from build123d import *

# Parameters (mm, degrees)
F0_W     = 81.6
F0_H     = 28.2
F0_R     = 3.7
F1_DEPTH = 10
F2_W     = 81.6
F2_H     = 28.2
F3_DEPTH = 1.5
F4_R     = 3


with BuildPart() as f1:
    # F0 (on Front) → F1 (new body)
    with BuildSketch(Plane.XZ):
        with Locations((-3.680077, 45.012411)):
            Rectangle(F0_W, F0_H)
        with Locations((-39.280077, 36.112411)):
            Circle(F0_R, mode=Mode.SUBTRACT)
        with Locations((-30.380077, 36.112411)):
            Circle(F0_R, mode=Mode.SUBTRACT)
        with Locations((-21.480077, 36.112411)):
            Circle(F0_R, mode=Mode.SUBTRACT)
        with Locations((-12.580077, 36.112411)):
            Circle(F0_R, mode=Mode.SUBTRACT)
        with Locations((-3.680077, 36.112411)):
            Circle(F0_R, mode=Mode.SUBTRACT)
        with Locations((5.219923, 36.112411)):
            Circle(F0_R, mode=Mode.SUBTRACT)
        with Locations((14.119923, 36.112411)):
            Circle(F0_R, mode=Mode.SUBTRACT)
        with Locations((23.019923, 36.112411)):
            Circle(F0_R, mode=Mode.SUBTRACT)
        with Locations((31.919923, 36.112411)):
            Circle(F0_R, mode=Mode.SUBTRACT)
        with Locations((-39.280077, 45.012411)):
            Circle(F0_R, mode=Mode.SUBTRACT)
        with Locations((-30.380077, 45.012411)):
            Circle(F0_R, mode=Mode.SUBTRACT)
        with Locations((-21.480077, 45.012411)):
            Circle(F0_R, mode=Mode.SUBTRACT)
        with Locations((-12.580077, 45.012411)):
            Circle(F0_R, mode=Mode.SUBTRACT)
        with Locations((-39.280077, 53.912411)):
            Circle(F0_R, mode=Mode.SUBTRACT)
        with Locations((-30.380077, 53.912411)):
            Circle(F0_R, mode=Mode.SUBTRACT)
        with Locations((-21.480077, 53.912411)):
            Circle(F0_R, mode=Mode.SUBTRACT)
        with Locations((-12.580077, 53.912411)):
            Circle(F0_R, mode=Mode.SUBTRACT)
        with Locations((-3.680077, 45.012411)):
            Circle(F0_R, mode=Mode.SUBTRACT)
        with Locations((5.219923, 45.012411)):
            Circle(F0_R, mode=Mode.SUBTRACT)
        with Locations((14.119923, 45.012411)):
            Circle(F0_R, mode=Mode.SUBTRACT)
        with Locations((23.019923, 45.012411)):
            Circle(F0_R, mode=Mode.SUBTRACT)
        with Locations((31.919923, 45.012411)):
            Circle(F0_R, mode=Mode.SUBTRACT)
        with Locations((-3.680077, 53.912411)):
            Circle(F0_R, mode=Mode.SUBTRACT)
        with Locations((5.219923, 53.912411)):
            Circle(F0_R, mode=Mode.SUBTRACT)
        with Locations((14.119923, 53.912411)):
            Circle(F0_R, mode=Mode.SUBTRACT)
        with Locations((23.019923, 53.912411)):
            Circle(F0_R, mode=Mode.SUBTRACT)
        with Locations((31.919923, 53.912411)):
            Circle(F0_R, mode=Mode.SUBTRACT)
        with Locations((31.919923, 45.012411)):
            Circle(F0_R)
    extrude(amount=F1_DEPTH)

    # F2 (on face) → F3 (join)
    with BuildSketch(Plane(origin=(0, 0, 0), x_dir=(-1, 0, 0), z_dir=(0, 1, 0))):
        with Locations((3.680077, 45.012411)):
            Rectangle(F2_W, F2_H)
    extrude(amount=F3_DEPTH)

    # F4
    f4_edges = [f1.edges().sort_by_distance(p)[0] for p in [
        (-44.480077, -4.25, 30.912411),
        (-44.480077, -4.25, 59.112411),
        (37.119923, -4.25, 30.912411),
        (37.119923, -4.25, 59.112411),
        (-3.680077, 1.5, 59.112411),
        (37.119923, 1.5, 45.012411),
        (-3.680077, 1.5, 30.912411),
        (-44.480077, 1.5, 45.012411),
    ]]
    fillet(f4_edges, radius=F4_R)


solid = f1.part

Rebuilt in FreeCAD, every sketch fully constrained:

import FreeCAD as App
import Part
import Sketcher
Q = App.Units.Quantity


def edges_at(feature, points):
    """Names of the edges that pass closest to the given points."""
    edges = feature.Shape.Edges
    near = lambda p: min(range(len(edges)), key=lambda i: edges[i].distToShape(Part.Vertex(*p))[0])
    return sorted({f"Edge{near(p) + 1}" for p in points})

doc = App.newDocument("Part")
params = doc.addObject("Spreadsheet::Sheet", "Params")
for row, (alias, value) in enumerate([
    ("sketch1_diameter", "7.4 mm"),
    ("sketch1_width", "81.6 mm"),
    ("sketch1_height", "28.2 mm"),
    ("pad1_length", "10 mm"),
    ("sketch2_width", "81.6 mm"),
    ("sketch2_height", "28.2 mm"),
    ("pad2_length", "1.5 mm"),
    ("fillet_radius", "3 mm"),
], start=1):
    params.set(f"A{row}", alias)
    params.set(f"B{row}", "=" + value)
    params.setAlias(f"B{row}", alias)

body = doc.addObject("PartDesign::Body", "Body")

# Sketch on XZ plane
sketch1 = body.newObject("Sketcher::SketchObject", "Sketch")
sketch1.AttachmentSupport = (doc.getObject("XZ_Plane"), [""])
sketch1.MapMode = "FlatFace"
sketch1.addGeometry(Part.LineSegment(App.Vector(-44.480077, 59.112411, 0), App.Vector(-44.480077, 30.912411, 0)), False)
sketch1.addGeometry(Part.LineSegment(App.Vector(-44.480077, 30.912411, 0), App.Vector(37.119923, 30.912411, 0)), False)
sketch1.addGeometry(Part.LineSegment(App.Vector(37.119923, 30.912411, 0), App.Vector(37.119923, 59.112411, 0)), False)
sketch1.addGeometry(Part.LineSegment(App.Vector(37.119923, 59.112411, 0), App.Vector(-44.480077, 59.112411, 0)), False)
sketch1.addGeometry(Part.Circle(App.Vector(-39.280077, 36.112411, 0), App.Vector(0, 0, 1), 3.7), False)
sketch1.addGeometry(Part.Circle(App.Vector(-30.380077, 36.112411, 0), App.Vector(0, 0, 1), 3.7), False)
sketch1.addGeometry(Part.Circle(App.Vector(-21.480077, 36.112411, 0), App.Vector(0, 0, 1), 3.7), False)
sketch1.addGeometry(Part.Circle(App.Vector(-12.580077, 36.112411, 0), App.Vector(0, 0, 1), 3.7), False)
sketch1.addGeometry(Part.Circle(App.Vector(-3.680077, 36.112411, 0), App.Vector(0, 0, 1), 3.7), False)
sketch1.addGeometry(Part.Circle(App.Vector(5.219923, 36.112411, 0), App.Vector(0, 0, 1), 3.7), False)
sketch1.addGeometry(Part.Circle(App.Vector(14.119923, 36.112411, 0), App.Vector(0, 0, 1), 3.7), False)
sketch1.addGeometry(Part.Circle(App.Vector(23.019923, 36.112411, 0), App.Vector(0, 0, 1), 3.7), False)
sketch1.addGeometry(Part.Circle(App.Vector(31.919923, 36.112411, 0), App.Vector(0, 0, 1), 3.7), False)
sketch1.addGeometry(Part.Circle(App.Vector(-39.280077, 45.012411, 0), App.Vector(0, 0, 1), 3.7), False)
sketch1.addGeometry(Part.Circle(App.Vector(-30.380077, 45.012411, 0), App.Vector(0, 0, 1), 3.7), False)
sketch1.addGeometry(Part.Circle(App.Vector(-21.480077, 45.012411, 0), App.Vector(0, 0, 1), 3.7), False)
sketch1.addGeometry(Part.Circle(App.Vector(-12.580077, 45.012411, 0), App.Vector(0, 0, 1), 3.7), False)
sketch1.addGeometry(Part.Circle(App.Vector(-39.280077, 53.912411, 0), App.Vector(0, 0, 1), 3.7), False)
sketch1.addGeometry(Part.Circle(App.Vector(-30.380077, 53.912411, 0), App.Vector(0, 0, 1), 3.7), False)
sketch1.addGeometry(Part.Circle(App.Vector(-21.480077, 53.912411, 0), App.Vector(0, 0, 1), 3.7), False)
sketch1.addGeometry(Part.Circle(App.Vector(-12.580077, 53.912411, 0), App.Vector(0, 0, 1), 3.7), False)
sketch1.addGeometry(Part.Circle(App.Vector(-3.680077, 45.012411, 0), App.Vector(0, 0, 1), 3.7), False)
sketch1.addGeometry(Part.Circle(App.Vector(5.219923, 45.012411, 0), App.Vector(0, 0, 1), 3.7), False)
sketch1.addGeometry(Part.Circle(App.Vector(14.119923, 45.012411, 0), App.Vector(0, 0, 1), 3.7), False)
sketch1.addGeometry(Part.Circle(App.Vector(23.019923, 45.012411, 0), App.Vector(0, 0, 1), 3.7), False)
sketch1.addGeometry(Part.Circle(App.Vector(-3.680077, 53.912411, 0), App.Vector(0, 0, 1), 3.7), False)
sketch1.addGeometry(Part.Circle(App.Vector(5.219923, 53.912411, 0), App.Vector(0, 0, 1), 3.7), False)
sketch1.addGeometry(Part.Circle(App.Vector(14.119923, 53.912411, 0), App.Vector(0, 0, 1), 3.7), False)
sketch1.addGeometry(Part.Circle(App.Vector(23.019923, 53.912411, 0), App.Vector(0, 0, 1), 3.7), False)
sketch1.addGeometry(Part.Circle(App.Vector(31.919923, 53.912411, 0), App.Vector(0, 0, 1), 3.7), False)
sketch1.addConstraint(Sketcher.Constraint("Coincident", 0, 2, 1, 1))
sketch1.addConstraint(Sketcher.Constraint("Coincident", 1, 2, 2, 1))
sketch1.addConstraint(Sketcher.Constraint("Coincident", 2, 2, 3, 1))
sketch1.addConstraint(Sketcher.Constraint("Coincident", 3, 2, 0, 1))
sketch1.addConstraint(Sketcher.Constraint("Vertical", 0))
sketch1.addConstraint(Sketcher.Constraint("Horizontal", 1))
sketch1.addConstraint(Sketcher.Constraint("Vertical", 2))
sketch1.addConstraint(Sketcher.Constraint("Horizontal", 3))
sketch1.addConstraint(Sketcher.Constraint("Equal", 4, 5))
sketch1.addConstraint(Sketcher.Constraint("Equal", 5, 6))
sketch1.addConstraint(Sketcher.Constraint("Equal", 6, 7))
sketch1.addConstraint(Sketcher.Constraint("Equal", 7, 8))
sketch1.addConstraint(Sketcher.Constraint("Equal", 8, 9))
sketch1.addConstraint(Sketcher.Constraint("Equal", 9, 10))
sketch1.addConstraint(Sketcher.Constraint("Equal", 10, 11))
sketch1.addConstraint(Sketcher.Constraint("Equal", 11, 12))
sketch1.addConstraint(Sketcher.Constraint("Equal", 12, 13))
sketch1.addConstraint(Sketcher.Constraint("Equal", 13, 14))
sketch1.addConstraint(Sketcher.Constraint("Equal", 14, 15))
sketch1.addConstraint(Sketcher.Constraint("Equal", 15, 16))
sketch1.addConstraint(Sketcher.Constraint("Equal", 16, 17))
sketch1.addConstraint(Sketcher.Constraint("Equal", 17, 18))
sketch1.addConstraint(Sketcher.Constraint("Equal", 18, 19))
sketch1.addConstraint(Sketcher.Constraint("Equal", 19, 20))
sketch1.addConstraint(Sketcher.Constraint("Equal", 20, 21))
sketch1.addConstraint(Sketcher.Constraint("Equal", 21, 22))
sketch1.addConstraint(Sketcher.Constraint("Equal", 22, 23))
sketch1.addConstraint(Sketcher.Constraint("Equal", 23, 24))
sketch1.addConstraint(Sketcher.Constraint("Equal", 24, 25))
sketch1.addConstraint(Sketcher.Constraint("Equal", 25, 26))
sketch1.addConstraint(Sketcher.Constraint("Equal", 26, 27))
sketch1.addConstraint(Sketcher.Constraint("Equal", 27, 28))
sketch1.addConstraint(Sketcher.Constraint("Equal", 28, 29))
sketch1.addConstraint(Sketcher.Constraint("Horizontal", 4, 3, 5, 3))
sketch1.addConstraint(Sketcher.Constraint("Horizontal", 5, 3, 6, 3))
sketch1.addConstraint(Sketcher.Constraint("Horizontal", 6, 3, 7, 3))
sketch1.addConstraint(Sketcher.Constraint("Horizontal", 7, 3, 8, 3))
sketch1.addConstraint(Sketcher.Constraint("Horizontal", 8, 3, 9, 3))
sketch1.addConstraint(Sketcher.Constraint("Horizontal", 9, 3, 10, 3))
sketch1.addConstraint(Sketcher.Constraint("Horizontal", 10, 3, 11, 3))
sketch1.addConstraint(Sketcher.Constraint("Horizontal", 11, 3, 12, 3))
sketch1.addConstraint(Sketcher.Constraint("Horizontal", 13, 3, 14, 3))
sketch1.addConstraint(Sketcher.Constraint("Horizontal", 14, 3, 15, 3))
sketch1.addConstraint(Sketcher.Constraint("Horizontal", 15, 3, 16, 3))
sketch1.addConstraint(Sketcher.Constraint("Horizontal", 17, 3, 18, 3))
sketch1.addConstraint(Sketcher.Constraint("Horizontal", 18, 3, 19, 3))
sketch1.addConstraint(Sketcher.Constraint("Horizontal", 19, 3, 20, 3))
sketch1.addConstraint(Sketcher.Constraint("Horizontal", 16, 3, 21, 3))
sketch1.addConstraint(Sketcher.Constraint("Horizontal", 21, 3, 22, 3))
sketch1.addConstraint(Sketcher.Constraint("Horizontal", 22, 3, 23, 3))
sketch1.addConstraint(Sketcher.Constraint("Horizontal", 23, 3, 24, 3))
sketch1.addConstraint(Sketcher.Constraint("Horizontal", 20, 3, 25, 3))
sketch1.addConstraint(Sketcher.Constraint("Horizontal", 25, 3, 26, 3))
sketch1.addConstraint(Sketcher.Constraint("Horizontal", 26, 3, 27, 3))
sketch1.addConstraint(Sketcher.Constraint("Horizontal", 27, 3, 28, 3))
sketch1.addConstraint(Sketcher.Constraint("Horizontal", 28, 3, 29, 3))
sketch1.addConstraint(Sketcher.Constraint("Vertical", 4, 3, 13, 3))
sketch1.addConstraint(Sketcher.Constraint("Vertical", 5, 3, 14, 3))
sketch1.addConstraint(Sketcher.Constraint("Vertical", 6, 3, 15, 3))
sketch1.addConstraint(Sketcher.Constraint("Vertical", 7, 3, 16, 3))
sketch1.addConstraint(Sketcher.Constraint("Vertical", 13, 3, 17, 3))
sketch1.addConstraint(Sketcher.Constraint("Vertical", 14, 3, 18, 3))
sketch1.addConstraint(Sketcher.Constraint("Vertical", 15, 3, 19, 3))
sketch1.addConstraint(Sketcher.Constraint("Vertical", 16, 3, 20, 3))
sketch1.addConstraint(Sketcher.Constraint("Vertical", 8, 3, 21, 3))
sketch1.addConstraint(Sketcher.Constraint("Vertical", 9, 3, 22, 3))
sketch1.addConstraint(Sketcher.Constraint("Vertical", 10, 3, 23, 3))
sketch1.addConstraint(Sketcher.Constraint("Vertical", 11, 3, 24, 3))
sketch1.addConstraint(Sketcher.Constraint("Vertical", 21, 3, 25, 3))
sketch1.addConstraint(Sketcher.Constraint("Vertical", 22, 3, 26, 3))
sketch1.addConstraint(Sketcher.Constraint("Vertical", 23, 3, 27, 3))
sketch1.addConstraint(Sketcher.Constraint("Vertical", 24, 3, 28, 3))
sketch1.addConstraint(Sketcher.Constraint("Vertical", 12, 3, 29, 3))
sketch1.addConstraint(Sketcher.Constraint("Diameter", 4, Q("7.4 mm")))
sketch1.addConstraint(Sketcher.Constraint("DistanceX", 1, 1, 1, 2, Q("81.6 mm")))
sketch1.addConstraint(Sketcher.Constraint("DistanceY", 0, 2, 0, 1, Q("28.2 mm")))
sketch1.addConstraint(Sketcher.Constraint("DistanceX", 0, 2, 6, 3, Q("23 mm")))
sketch1.addConstraint(Sketcher.Constraint("DistanceX", 10, 3, 1, 2, Q("23 mm")))
sketch1.addConstraint(Sketcher.Constraint("DistanceY", 1, 2, 29, 3, Q("23 mm")))
sketch1.addConstraint(Sketcher.Constraint("DistanceY", 12, 3, 2, 2, Q("23 mm")))
sketch1.addConstraint(Sketcher.Constraint("DistanceX", 4, 3, 5, 3, Q("8.9 mm")))
sketch1.addConstraint(Sketcher.Constraint("DistanceX", 5, 3, 6, 3, Q("8.9 mm")))
sketch1.addConstraint(Sketcher.Constraint("DistanceX", 6, 3, 7, 3, Q("8.9 mm")))
sketch1.addConstraint(Sketcher.Constraint("DistanceX", 7, 3, 8, 3, Q("8.9 mm")))
sketch1.addConstraint(Sketcher.Constraint("DistanceX", 8, 3, 9, 3, Q("8.9 mm")))
sketch1.addConstraint(Sketcher.Constraint("DistanceX", 10, 3, 11, 3, Q("8.9 mm")))
sketch1.addConstraint(Sketcher.Constraint("DistanceX", 11, 3, 12, 3, Q("8.9 mm")))
sketch1.addConstraint(Sketcher.Constraint("DistanceY", 4, 3, 13, 3, Q("8.9 mm")))
sketch1.addConstraint(Sketcher.Constraint("DistanceY", -1, 1, 4, 3, Q("36.112411 mm")))
sketch1.addConstraint(Sketcher.Constraint("DistanceX", 4, 3, -1, 1, Q("39.280077 mm")))
sketch1.setExpression("Constraints[73]", "Params.sketch1_diameter")
sketch1.setExpression("Constraints[74]", "Params.sketch1_width")
sketch1.setExpression("Constraints[75]", "Params.sketch1_height")
pad1 = body.newObject("PartDesign::Pad", "Pad")
pad1.Profile = sketch1
pad1.setExpression("Length", "Params.pad1_length")

# Sketch on XZ plane
sketch2 = body.newObject("Sketcher::SketchObject", "Sketch001")
sketch2.AttachmentSupport = (doc.getObject("XZ_Plane"), [""])
sketch2.MapMode = "FlatFace"
sketch2.addGeometry(Part.LineSegment(App.Vector(37.119923, 59.112411, 0), App.Vector(37.119923, 30.912411, 0)), False)
sketch2.addGeometry(Part.LineSegment(App.Vector(37.119923, 30.912411, 0), App.Vector(-44.480077, 30.912411, 0)), False)
sketch2.addGeometry(Part.LineSegment(App.Vector(-44.480077, 30.912411, 0), App.Vector(-44.480077, 59.112411, 0)), False)
sketch2.addGeometry(Part.LineSegment(App.Vector(-44.480077, 59.112411, 0), App.Vector(37.119923, 59.112411, 0)), False)
sketch2.addConstraint(Sketcher.Constraint("Coincident", 0, 2, 1, 1))
sketch2.addConstraint(Sketcher.Constraint("Coincident", 1, 2, 2, 1))
sketch2.addConstraint(Sketcher.Constraint("Coincident", 2, 2, 3, 1))
sketch2.addConstraint(Sketcher.Constraint("Coincident", 3, 2, 0, 1))
sketch2.addConstraint(Sketcher.Constraint("Vertical", 0))
sketch2.addConstraint(Sketcher.Constraint("Horizontal", 1))
sketch2.addConstraint(Sketcher.Constraint("Vertical", 2))
sketch2.addConstraint(Sketcher.Constraint("Horizontal", 3))
sketch2.addConstraint(Sketcher.Constraint("DistanceX", 1, 2, 1, 1, Q("81.6 mm")))
sketch2.addConstraint(Sketcher.Constraint("DistanceY", 0, 2, 0, 1, Q("28.2 mm")))
sketch2.addConstraint(Sketcher.Constraint("DistanceY", -1, 1, 0, 2, Q("30.912411 mm")))
sketch2.addConstraint(Sketcher.Constraint("DistanceX", -1, 1, 0, 2, Q("37.119923 mm")))
sketch2.setExpression("Constraints[8]", "Params.sketch2_width")
sketch2.setExpression("Constraints[9]", "Params.sketch2_height")
pad2 = body.newObject("PartDesign::Pad", "Pad001")
pad2.Profile = sketch2
pad2.setExpression("Length", "Params.pad2_length")
pad2.Reversed = True
doc.recompute()

fillet = body.newObject("PartDesign::Fillet", "Fillet")
fillet.Base = (pad2, edges_at(pad2, [
    (-44.48, -4.25, 30.912),
    (-44.48, -4.25, 59.112),
    (37.12, -4.25, 30.912),
    (37.12, -4.25, 59.112),
    (-3.68, 1.5, 59.112),
    (37.12, 1.5, 45.012),
    (-3.68, 1.5, 30.912),
    (-44.48, 1.5, 45.012),
]))
fillet.setExpression("Radius", "Params.fillet_radius")

doc.recompute()
